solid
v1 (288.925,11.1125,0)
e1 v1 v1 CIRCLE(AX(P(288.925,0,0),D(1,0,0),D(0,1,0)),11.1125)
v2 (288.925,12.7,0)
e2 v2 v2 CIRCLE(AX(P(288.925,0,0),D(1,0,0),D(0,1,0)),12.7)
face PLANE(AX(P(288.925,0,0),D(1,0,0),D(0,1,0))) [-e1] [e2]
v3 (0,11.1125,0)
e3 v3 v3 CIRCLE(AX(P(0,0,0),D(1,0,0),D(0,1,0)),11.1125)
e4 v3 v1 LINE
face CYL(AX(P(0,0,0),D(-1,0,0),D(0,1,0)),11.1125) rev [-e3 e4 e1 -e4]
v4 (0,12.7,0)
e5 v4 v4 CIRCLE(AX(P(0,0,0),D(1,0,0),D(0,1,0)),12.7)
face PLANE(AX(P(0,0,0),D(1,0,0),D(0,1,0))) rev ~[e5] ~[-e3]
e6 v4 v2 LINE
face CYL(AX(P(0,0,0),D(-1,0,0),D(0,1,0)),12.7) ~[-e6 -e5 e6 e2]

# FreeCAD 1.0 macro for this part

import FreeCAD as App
import Part
import Sketcher
Q = App.Units.Quantity

doc = App.newDocument("Part")
body = doc.addObject("PartDesign::Body", "Body")

sketch1 = body.newObject("Sketcher::SketchObject", "Sketch")
sketch1.AttachmentSupport = (doc.getObject("YZ_Plane"), [""])
sketch1.MapMode = "FlatFace"
sketch1.addGeometry(Part.Circle(App.Vector(0, 0, 0), App.Vector(0, 0, 1), 12.7), False)
sketch1.addGeometry(Part.Circle(App.Vector(0, 0, 0), App.Vector(0, 0, 1), 11.1125), False)
sketch1.addConstraint(Sketcher.Constraint("Coincident", 0, 3, -1, 1))
sketch1.addConstraint(Sketcher.Constraint("Coincident", 1, 3, -1, 1))
sketch1.addConstraint(Sketcher.Constraint("Diameter", 0, Q("1 in")))
sketch1.addConstraint(Sketcher.Constraint("Diameter", 1, Q("0.875 in")))
pad1 = body.newObject("PartDesign::Pad", "Pad")
pad1.Profile = sketch1
pad1.Length = Q("11.375 in")

doc.recompute()
